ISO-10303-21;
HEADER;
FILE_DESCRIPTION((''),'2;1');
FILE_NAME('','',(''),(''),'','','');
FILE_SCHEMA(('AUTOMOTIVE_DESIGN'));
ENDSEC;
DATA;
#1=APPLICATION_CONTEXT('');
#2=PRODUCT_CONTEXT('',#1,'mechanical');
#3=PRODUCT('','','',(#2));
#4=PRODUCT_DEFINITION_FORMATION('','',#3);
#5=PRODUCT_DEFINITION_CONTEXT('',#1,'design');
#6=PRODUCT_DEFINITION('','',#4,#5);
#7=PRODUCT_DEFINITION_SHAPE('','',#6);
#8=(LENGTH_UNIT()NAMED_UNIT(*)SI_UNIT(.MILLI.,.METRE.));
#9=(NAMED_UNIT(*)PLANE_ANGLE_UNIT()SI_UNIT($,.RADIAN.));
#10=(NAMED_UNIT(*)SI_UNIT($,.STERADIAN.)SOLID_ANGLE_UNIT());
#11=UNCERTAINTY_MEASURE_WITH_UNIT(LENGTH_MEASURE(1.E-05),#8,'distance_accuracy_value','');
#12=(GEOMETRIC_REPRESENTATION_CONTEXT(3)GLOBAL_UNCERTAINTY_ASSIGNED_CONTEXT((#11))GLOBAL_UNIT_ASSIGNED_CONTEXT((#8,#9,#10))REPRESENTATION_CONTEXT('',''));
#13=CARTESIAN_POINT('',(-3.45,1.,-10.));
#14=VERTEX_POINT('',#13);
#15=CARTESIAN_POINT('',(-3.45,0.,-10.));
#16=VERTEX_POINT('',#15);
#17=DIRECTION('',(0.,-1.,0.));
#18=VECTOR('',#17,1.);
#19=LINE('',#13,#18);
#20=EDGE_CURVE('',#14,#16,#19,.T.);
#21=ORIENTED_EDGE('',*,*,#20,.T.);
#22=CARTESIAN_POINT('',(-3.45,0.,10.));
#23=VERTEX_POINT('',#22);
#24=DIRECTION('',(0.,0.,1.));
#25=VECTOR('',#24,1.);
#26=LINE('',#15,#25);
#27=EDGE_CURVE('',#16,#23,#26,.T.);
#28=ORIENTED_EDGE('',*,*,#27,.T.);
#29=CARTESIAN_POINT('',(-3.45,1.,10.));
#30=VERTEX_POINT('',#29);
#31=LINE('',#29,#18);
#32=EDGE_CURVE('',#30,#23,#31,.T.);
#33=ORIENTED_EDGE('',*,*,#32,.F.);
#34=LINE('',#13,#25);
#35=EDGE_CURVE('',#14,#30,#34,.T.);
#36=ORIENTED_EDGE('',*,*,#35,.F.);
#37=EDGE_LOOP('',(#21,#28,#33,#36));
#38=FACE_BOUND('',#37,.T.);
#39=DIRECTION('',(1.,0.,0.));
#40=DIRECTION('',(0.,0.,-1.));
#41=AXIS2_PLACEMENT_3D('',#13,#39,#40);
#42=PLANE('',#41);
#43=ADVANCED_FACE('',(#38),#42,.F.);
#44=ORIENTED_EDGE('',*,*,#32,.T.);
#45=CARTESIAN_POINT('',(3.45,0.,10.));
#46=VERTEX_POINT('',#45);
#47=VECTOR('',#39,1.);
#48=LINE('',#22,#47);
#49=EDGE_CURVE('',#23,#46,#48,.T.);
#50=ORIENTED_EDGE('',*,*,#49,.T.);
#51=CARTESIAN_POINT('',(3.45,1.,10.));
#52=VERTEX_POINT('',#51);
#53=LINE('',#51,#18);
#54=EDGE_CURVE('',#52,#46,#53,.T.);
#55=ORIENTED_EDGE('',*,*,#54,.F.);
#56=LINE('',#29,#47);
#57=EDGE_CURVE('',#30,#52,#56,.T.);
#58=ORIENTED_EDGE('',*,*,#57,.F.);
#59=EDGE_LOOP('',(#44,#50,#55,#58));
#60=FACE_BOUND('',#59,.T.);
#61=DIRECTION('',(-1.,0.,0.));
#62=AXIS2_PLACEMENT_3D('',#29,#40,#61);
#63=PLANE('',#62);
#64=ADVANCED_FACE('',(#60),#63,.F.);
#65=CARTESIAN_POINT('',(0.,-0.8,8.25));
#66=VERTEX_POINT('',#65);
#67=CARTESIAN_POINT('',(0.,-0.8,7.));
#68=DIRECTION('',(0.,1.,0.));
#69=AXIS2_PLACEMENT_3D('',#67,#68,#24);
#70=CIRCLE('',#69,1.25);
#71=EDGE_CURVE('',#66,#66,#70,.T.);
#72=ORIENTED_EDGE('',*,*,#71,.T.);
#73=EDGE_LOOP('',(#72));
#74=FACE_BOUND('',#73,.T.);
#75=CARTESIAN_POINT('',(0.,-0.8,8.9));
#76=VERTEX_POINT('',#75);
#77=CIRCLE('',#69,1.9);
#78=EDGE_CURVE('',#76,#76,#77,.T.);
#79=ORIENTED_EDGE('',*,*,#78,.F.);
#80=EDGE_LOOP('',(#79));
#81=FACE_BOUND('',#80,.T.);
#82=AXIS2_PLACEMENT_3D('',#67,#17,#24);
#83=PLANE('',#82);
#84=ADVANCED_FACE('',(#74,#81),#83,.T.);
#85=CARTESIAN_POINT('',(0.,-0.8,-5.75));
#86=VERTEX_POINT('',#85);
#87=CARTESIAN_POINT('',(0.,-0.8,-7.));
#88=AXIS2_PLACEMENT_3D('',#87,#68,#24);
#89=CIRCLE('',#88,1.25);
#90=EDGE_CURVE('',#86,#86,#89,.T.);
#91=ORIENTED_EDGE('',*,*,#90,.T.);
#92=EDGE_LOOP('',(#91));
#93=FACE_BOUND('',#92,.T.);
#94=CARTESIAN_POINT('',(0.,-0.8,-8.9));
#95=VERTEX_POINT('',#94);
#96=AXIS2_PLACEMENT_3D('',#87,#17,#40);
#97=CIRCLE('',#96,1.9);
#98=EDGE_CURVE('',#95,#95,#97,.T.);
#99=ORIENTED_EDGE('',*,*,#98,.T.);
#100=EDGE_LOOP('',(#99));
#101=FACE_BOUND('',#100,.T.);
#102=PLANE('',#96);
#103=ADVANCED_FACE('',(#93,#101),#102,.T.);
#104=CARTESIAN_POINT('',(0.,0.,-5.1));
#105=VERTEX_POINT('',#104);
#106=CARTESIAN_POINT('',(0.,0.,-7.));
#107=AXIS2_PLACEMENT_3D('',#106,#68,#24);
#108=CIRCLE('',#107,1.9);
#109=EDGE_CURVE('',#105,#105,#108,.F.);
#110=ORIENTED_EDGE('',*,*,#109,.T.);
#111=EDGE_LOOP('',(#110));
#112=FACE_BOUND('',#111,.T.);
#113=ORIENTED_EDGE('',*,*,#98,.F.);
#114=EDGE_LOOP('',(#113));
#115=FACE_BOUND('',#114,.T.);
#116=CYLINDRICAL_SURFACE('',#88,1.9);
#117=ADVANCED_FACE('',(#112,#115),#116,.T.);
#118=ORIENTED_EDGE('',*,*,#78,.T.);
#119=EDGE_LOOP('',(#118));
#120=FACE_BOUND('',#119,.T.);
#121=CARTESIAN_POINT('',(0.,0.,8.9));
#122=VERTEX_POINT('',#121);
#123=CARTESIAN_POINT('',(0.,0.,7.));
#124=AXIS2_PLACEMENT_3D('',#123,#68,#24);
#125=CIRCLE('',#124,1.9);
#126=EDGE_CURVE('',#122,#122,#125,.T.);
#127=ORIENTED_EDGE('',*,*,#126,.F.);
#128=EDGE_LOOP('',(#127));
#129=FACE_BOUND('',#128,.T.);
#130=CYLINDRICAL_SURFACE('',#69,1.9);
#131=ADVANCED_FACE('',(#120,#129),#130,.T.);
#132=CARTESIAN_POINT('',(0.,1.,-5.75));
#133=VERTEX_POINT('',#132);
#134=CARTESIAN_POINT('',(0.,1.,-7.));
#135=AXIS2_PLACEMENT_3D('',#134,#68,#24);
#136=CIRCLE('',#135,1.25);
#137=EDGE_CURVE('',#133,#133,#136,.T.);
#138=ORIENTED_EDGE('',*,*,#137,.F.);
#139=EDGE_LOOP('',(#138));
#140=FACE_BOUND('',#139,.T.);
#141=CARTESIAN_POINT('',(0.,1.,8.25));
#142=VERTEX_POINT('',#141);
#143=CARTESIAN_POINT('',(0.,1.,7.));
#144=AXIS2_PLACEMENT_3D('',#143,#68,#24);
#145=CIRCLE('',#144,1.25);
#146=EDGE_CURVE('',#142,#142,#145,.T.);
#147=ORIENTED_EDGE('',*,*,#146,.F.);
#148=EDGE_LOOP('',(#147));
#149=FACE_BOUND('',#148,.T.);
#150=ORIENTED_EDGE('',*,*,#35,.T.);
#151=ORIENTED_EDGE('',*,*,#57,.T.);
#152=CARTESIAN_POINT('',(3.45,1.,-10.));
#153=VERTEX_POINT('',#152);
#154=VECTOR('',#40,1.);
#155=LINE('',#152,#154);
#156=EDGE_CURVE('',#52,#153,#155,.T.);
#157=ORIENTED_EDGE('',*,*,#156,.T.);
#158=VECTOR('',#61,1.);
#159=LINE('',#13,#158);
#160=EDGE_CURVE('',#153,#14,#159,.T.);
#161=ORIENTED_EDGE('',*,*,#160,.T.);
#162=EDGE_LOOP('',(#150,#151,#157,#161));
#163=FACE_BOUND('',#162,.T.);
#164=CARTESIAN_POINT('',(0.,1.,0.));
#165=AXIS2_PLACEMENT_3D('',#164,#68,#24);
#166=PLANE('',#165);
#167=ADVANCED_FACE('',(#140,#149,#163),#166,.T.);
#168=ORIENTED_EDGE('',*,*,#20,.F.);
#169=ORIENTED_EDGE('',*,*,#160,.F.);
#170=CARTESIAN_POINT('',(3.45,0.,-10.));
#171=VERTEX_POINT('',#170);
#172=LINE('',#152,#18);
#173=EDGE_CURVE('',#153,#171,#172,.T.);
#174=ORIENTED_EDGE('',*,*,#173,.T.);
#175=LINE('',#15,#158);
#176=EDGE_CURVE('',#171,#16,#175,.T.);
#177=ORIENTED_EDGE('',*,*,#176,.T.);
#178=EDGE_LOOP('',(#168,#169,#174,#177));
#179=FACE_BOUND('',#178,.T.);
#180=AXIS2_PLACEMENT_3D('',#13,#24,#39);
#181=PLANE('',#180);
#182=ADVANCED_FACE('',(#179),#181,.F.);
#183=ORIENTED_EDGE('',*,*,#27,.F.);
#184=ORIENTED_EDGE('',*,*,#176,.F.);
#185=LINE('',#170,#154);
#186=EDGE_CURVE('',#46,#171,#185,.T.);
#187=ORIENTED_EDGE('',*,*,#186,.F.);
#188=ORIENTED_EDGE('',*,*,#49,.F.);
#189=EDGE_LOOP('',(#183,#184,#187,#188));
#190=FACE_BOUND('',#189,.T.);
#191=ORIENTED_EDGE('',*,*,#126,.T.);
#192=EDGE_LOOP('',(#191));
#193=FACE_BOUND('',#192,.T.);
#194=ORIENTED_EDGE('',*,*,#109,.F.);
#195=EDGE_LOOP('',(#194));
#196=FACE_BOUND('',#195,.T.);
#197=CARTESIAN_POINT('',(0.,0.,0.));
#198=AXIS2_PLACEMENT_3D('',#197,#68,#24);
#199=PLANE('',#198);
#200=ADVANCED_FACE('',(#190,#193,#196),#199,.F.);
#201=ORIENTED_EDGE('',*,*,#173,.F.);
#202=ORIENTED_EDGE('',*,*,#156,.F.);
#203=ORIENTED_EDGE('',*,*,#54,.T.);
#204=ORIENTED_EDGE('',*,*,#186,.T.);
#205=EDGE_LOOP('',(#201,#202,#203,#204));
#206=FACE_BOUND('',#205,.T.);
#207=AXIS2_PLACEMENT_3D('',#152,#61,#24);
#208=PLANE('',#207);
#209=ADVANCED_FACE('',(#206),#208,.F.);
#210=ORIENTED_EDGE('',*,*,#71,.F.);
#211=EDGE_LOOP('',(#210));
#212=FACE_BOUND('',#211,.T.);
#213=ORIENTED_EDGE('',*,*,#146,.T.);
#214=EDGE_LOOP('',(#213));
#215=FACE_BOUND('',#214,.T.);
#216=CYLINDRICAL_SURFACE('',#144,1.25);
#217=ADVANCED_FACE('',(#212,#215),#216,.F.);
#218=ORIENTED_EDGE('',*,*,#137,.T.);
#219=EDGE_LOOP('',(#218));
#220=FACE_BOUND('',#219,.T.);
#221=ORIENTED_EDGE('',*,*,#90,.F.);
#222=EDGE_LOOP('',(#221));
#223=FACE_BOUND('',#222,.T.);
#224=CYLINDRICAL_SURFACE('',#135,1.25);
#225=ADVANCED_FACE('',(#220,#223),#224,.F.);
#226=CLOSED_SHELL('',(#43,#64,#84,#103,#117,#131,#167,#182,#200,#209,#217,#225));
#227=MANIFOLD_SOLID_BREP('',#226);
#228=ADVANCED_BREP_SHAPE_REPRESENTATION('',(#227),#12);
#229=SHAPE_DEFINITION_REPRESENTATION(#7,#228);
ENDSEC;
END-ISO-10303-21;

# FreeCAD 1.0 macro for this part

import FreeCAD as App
import Part
import Sketcher
from FreeCAD import Vector
Q = App.Units.Quantity


def add_polygon(sketch, points):
    """Adds a closed chain of lines whose ends are joined by coincident constraints."""
    first, n = sketch.GeometryCount, len(points)
    for a, b in zip(points, points[1:] + points[:1]):
        sketch.addGeometry(Part.LineSegment(App.Vector(*a, 0), App.Vector(*b, 0)), False)
    for i in range(n):
        sketch.addConstraint(Sketcher.Constraint("Coincident", first + i, 2, first + (i + 1) % n, 1))

doc = App.newDocument("Part")
body = doc.addObject("PartDesign::Body", "Body")

# Sketch on XZ plane
sketch1 = body.newObject("Sketcher::SketchObject", "Sketch")
sketch1.AttachmentSupport = (doc.getObject("XZ_Plane"), [""])
sketch1.MapMode = "FlatFace"
add_polygon(sketch1, [(-3, -10), (-3, 10), (3, 10), (3, -10)])  # lines 0-3
sketch1.addConstraint([
    Sketcher.Constraint("Vertical", 0),
    Sketcher.Constraint("Horizontal", 1),
    Sketcher.Constraint("Vertical", 2),
    Sketcher.Constraint("Horizontal", 3),
    Sketcher.Constraint("Symmetric", 0, 2, 2, 2, -1, 1),
    Sketcher.Constraint("DistanceY", 0, 1, 0, 2, Q("20 mm")),
    Sketcher.Constraint("DistanceX", 1, 1, 1, 2, Q("6.9 mm")),
])
pad1 = body.newObject("PartDesign::Pad", "Pad")
pad1.Profile = sketch1
pad1.Length = 1
pad1.Reversed = True

# Sketch on XZ plane
sketch2 = body.newObject("Sketcher::SketchObject", "Sketch001")
sketch2.AttachmentSupport = (doc.getObject("XZ_Plane"), [""])
sketch2.MapMode = "FlatFace"
sketch2.addGeometry(Part.Circle(Vector(0, -7, 0), Vector(0, 0, 1), 1.9), False)
sketch2.addConstraint([
    Sketcher.Constraint("PointOnObject", 0, 3, -2),
    Sketcher.Constraint("Diameter", 0, Q("3.8 mm")),
    Sketcher.Constraint("DistanceY", 0, 3, -1, 1, Q("7 mm")),
])
pad2 = body.newObject("PartDesign::Pad", "Pad001")
pad2.Profile = sketch2
pad2.Length = 0.8
doc.recompute()

mirrored = body.newObject("PartDesign::Mirrored", "Mirrored")
mirrored.Originals = [pad2]
mirrored.MirrorPlane = (doc.getObject("XY_Plane"), [""])
body.Tip = mirrored

# Sketch on XZ plane
sketch3 = body.newObject("Sketcher::SketchObject", "Sketch002")
sketch3.AttachmentSupport = (doc.getObject("XZ_Plane"), [""])
sketch3.MapMode = "FlatFace"
sketch3.AttachmentOffset = App.Placement(Vector(0, 0, -1), App.Rotation())
sketch3.addGeometry(Part.Circle(Vector(0, -7, 0), Vector(0, 0, 1), 1.2), False)
sketch3.addConstraint([
    Sketcher.Constraint("PointOnObject", 0, 3, -2),
    Sketcher.Constraint("Diameter", 0, Q("2.5 mm")),
    Sketcher.Constraint("DistanceY", 0, 3, -1, 1, Q("7 mm")),
])
doc.recompute()
hole = body.newObject("PartDesign::Hole", "Hole")
hole.Profile = sketch3
hole.ThreadType = "None"
hole.Diameter = 2.5
hole.DepthType = "ThroughAll"
hole.Reversed = True
doc.recompute()

mirrored2 = body.newObject("PartDesign::Mirrored", "Mirrored001")
mirrored2.Originals = [hole]
mirrored2.MirrorPlane = (doc.getObject("XY_Plane"), [""])
body.Tip = mirrored2

doc.recompute()
